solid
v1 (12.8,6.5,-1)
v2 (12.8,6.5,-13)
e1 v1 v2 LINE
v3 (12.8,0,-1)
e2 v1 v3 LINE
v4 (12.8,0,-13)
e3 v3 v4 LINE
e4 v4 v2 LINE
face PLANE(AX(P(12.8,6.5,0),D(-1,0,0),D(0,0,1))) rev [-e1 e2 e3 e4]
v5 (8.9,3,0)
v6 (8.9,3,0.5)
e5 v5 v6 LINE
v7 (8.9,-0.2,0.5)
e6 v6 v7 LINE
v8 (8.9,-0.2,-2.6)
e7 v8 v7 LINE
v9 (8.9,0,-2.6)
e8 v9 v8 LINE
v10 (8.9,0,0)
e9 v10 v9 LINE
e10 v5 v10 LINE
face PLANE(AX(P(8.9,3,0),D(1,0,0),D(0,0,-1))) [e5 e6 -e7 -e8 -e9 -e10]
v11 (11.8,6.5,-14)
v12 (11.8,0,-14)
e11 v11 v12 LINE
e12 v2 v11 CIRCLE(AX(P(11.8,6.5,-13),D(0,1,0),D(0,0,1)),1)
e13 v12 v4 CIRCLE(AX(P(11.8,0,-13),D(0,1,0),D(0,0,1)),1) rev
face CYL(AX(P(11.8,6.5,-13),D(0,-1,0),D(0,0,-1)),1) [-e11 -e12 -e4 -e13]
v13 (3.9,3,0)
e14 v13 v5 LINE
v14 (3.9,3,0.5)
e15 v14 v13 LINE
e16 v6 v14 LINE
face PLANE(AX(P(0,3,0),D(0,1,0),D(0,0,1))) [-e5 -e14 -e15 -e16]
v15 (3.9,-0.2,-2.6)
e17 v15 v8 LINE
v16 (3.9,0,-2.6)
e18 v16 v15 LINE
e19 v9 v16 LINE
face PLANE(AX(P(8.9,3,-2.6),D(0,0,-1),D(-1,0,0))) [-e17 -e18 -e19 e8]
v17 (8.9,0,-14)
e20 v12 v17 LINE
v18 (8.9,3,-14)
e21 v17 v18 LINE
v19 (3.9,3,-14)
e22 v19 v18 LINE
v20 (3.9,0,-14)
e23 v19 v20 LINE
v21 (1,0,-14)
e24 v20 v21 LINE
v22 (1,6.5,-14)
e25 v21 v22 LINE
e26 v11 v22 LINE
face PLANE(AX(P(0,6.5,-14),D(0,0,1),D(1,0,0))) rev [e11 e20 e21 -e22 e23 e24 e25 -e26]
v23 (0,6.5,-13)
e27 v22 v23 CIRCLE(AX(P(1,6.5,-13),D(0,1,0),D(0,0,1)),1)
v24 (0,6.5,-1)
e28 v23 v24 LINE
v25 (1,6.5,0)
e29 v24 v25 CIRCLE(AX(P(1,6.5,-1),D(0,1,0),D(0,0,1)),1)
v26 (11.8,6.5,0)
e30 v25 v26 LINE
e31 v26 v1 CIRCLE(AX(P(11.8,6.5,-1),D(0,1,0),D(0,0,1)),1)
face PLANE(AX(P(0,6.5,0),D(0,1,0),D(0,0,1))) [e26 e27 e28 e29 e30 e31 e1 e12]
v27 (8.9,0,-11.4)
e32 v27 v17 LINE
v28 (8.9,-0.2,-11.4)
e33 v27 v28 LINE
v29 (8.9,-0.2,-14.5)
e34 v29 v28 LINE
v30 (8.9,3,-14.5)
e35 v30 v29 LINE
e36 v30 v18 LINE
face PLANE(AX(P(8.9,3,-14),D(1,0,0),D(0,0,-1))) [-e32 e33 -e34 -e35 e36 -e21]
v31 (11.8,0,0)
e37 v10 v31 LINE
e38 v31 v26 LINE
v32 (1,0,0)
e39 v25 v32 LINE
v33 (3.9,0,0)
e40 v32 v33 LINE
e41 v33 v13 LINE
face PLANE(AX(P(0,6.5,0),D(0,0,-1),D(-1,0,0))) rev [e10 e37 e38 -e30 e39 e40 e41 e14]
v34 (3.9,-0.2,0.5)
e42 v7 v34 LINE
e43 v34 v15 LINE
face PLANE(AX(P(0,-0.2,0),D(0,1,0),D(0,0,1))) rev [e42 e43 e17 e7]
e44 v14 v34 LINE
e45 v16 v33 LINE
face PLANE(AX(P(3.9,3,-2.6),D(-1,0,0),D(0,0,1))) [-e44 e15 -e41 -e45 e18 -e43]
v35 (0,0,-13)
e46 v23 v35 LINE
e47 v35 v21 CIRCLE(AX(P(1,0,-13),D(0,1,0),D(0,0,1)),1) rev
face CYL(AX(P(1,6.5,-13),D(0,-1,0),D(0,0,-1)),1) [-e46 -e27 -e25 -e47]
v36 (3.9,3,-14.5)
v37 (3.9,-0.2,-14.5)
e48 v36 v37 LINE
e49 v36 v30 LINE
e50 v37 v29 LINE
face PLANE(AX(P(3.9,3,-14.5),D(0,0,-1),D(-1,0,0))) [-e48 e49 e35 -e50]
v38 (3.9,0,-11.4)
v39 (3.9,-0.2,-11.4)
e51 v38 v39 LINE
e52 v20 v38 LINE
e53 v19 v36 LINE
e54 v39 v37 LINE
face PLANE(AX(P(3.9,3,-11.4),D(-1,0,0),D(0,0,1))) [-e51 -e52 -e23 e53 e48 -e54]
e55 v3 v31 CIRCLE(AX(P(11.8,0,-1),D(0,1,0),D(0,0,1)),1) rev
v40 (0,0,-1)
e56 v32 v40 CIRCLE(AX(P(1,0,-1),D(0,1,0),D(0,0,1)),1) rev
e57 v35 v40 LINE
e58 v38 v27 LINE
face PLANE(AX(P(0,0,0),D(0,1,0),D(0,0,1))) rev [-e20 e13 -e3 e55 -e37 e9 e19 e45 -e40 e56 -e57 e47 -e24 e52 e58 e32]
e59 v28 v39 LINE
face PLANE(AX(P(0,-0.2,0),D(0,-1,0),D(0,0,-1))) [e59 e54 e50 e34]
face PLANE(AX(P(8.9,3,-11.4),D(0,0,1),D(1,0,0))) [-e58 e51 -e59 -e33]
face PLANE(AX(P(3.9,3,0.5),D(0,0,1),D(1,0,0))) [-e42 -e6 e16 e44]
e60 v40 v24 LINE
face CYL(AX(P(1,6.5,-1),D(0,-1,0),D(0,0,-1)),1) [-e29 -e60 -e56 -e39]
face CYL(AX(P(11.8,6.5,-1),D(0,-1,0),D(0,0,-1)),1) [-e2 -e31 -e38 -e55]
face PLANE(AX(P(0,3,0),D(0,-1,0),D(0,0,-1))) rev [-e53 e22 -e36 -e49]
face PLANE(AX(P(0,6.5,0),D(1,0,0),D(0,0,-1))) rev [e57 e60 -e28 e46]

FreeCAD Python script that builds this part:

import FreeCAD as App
import Part
import Sketcher
Q = App.Units.Quantity


def edges_at(feature, points):
    """Names of the edges that pass closest to the given points."""
    edges = feature.Shape.Edges
    near = lambda p: min(range(len(edges)), key=lambda i: edges[i].distToShape(Part.Vertex(*p))[0])
    return sorted({f"Edge{near(p) + 1}" for p in points})


def add_polygon(sketch, points):
    """Adds a closed chain of lines whose ends are joined by coincident constraints."""
    first, n = sketch.GeometryCount, len(points)
    for a, b in zip(points, points[1:] + points[:1]):
        sketch.addGeometry(Part.LineSegment(App.Vector(*a, 0), App.Vector(*b, 0)), False)
    for i in range(n):
        sketch.addConstraint(Sketcher.Constraint("Coincident", first + i, 2, first + (i + 1) % n, 1))

doc = App.newDocument("Part")
body = doc.addObject("PartDesign::Body", "Body")

# Sketch on XZ plane
sketch1 = doc.addObject("Sketcher::SketchObject", "Sketch")
body.addObject(sketch1)
sketch1.AttachmentSupport = (doc.XZ_Plane, [""])
sketch1.MapMode = "FlatFace"
add_polygon(sketch1, [(0, -14), (0, 0), (13, 0), (13, -14)])  # lines 0-3
sketch1.addConstraint([
    Sketcher.Constraint("Vertical", 0),
    Sketcher.Constraint("Horizontal", 1),
    Sketcher.Constraint("Vertical", 2),
    Sketcher.Constraint("Horizontal", 3),
    Sketcher.Constraint("Coincident", 0, 2, -1, 1),
    Sketcher.Constraint("DistanceY", 0, 1, 0, 2, Q("14 mm")),
    Sketcher.Constraint("DistanceX", 1, 1, 1, 2, Q("12.8 mm")),
])
pad1 = doc.addObject("PartDesign::Pad", "Pad")
body.addObject(pad1)
pad1.Profile = sketch1
pad1.Length = 6.5
pad1.Reversed = True
doc.recompute()

fillet = doc.addObject("PartDesign::Fillet", "Fillet")
body.addObject(fillet)
fillet.Base = (pad1, edges_at(pad1, [
    (0, 3.25, 0),
    (0, 3.25, -14),
    (12.8, 3.25, -14),
    (12.8, 3.25, 0),
]))
fillet.Radius = 1

# Sketch on XZ plane
sketch2 = doc.addObject("Sketcher::SketchObject", "Sketch001")
body.addObject(sketch2)
sketch2.AttachmentSupport = (doc.XZ_Plane, [""])
sketch2.MapMode = "FlatFace"
add_polygon(sketch2, [(8.9, -2.6), (8.9, 0.5), (3.9, 0.5), (3.9, -2.6)])  # lines 0-3
add_polygon(sketch2, [(3.9, -14.5), (8.9, -14.5), (8.9, -11.4), (3.9, -11.4)])  # lines 4-7
sketch2.addConstraint([
    Sketcher.Constraint("Vertical", 0),
    Sketcher.Constraint("Horizontal", 1),
    Sketcher.Constraint("Vertical", 2),
    Sketcher.Constraint("Horizontal", 3),
    Sketcher.Constraint("Horizontal", 4),
    Sketcher.Constraint("Vertical", 5),
    Sketcher.Constraint("Horizontal", 6),
    Sketcher.Constraint("Vertical", 7),
    Sketcher.Constraint("Vertical", 3, 2, 4, 2),
    Sketcher.Constraint("Vertical", 2, 2, 6, 2),
    Sketcher.Constraint("Equal", 2, 5),
    Sketcher.Constraint("DistanceX", 1, 2, 1, 1, Q("5 mm")),
    Sketcher.Constraint("DistanceY", 0, 1, 0, 2, Q("3.1 mm")),
    Sketcher.Constraint("DistanceY", 4, 2, 0, 2, Q("15 mm")),
    Sketcher.Constraint("DistanceX", -1, 1, 0, 2, Q("8.9 mm")),
    Sketcher.Constraint("DistanceY", -1, 1, 0, 2, Q("0.5 mm")),
])
pad2 = doc.addObject("PartDesign::Pad", "Pad001")
body.addObject(pad2)
pad2.Profile = sketch2
pad2.Type = "TwoLengths"
pad2.Length = 0.2
pad2.Length2 = 3

doc.recompute()
